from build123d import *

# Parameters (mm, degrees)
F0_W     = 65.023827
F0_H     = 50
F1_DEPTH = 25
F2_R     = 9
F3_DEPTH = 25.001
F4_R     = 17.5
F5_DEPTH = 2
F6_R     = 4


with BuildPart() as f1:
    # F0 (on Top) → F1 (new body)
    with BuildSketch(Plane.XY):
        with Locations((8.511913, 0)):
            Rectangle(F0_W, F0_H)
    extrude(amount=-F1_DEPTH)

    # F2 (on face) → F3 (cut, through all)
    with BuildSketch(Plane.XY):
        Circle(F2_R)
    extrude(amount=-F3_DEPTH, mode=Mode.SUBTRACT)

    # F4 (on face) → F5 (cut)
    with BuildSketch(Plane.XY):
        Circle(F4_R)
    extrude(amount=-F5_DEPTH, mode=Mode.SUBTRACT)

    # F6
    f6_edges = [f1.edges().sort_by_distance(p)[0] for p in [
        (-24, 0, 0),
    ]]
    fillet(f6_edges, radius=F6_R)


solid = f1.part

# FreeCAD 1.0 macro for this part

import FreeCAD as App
import Part
import Sketcher
Q = App.Units.Quantity


def edges_at(feature, points):
    """Names of the edges that pass closest to the given points."""
    edges = feature.Shape.Edges
    near = lambda p: min(range(len(edges)), key=lambda i: edges[i].distToShape(Part.Vertex(*p))[0])
    return sorted({f"Edge{near(p) + 1}" for p in points})

doc = App.newDocument("Part")
body = doc.addObject("PartDesign::Body", "Body")

# Sketch on XY plane
sketch1 = body.newObject("Sketcher::SketchObject", "Sketch")
sketch1.AttachmentSupport = (doc.getObject("XY_Plane"), [""])
sketch1.MapMode = "FlatFace"
sketch1.addGeometry(Part.LineSegment(App.Vector(-24, 25, 0), App.Vector(-24, -25, 0)), False)
sketch1.addGeometry(Part.LineSegment(App.Vector(-24, -25, 0), App.Vector(41, -25, 0)), False)
sketch1.addGeometry(Part.LineSegment(App.Vector(41, -25, 0), App.Vector(41, 25, 0)), False)
sketch1.addGeometry(Part.LineSegment(App.Vector(41, 25, 0), App.Vector(-24, 25, 0)), False)
sketch1.addConstraint(Sketcher.Constraint("Coincident", 0, 2, 1, 1))
sketch1.addConstraint(Sketcher.Constraint("Coincident", 1, 2, 2, 1))
sketch1.addConstraint(Sketcher.Constraint("Coincident", 2, 2, 3, 1))
sketch1.addConstraint(Sketcher.Constraint("Coincident", 3, 2, 0, 1))
sketch1.addConstraint(Sketcher.Constraint("Vertical", 0))
sketch1.addConstraint(Sketcher.Constraint("Horizontal", 1))
sketch1.addConstraint(Sketcher.Constraint("Vertical", 2))
sketch1.addConstraint(Sketcher.Constraint("Horizontal", 3))
sketch1.addConstraint(Sketcher.Constraint("DistanceY", 0, 2, 0, 1, Q("50 mm")))
sketch1.addConstraint(Sketcher.Constraint("DistanceX", 0, 2, -1, 1, Q("24 mm")))
sketch1.addConstraint(Sketcher.Constraint("DistanceY", 0, 2, -1, 1, Q("25 mm")))
sketch1.addConstraint(Sketcher.Constraint("DistanceX", 1, 1, 1, 2, Q("65.023827 mm")))
pad1 = body.newObject("PartDesign::Pad", "Pad")
pad1.Profile = sketch1
pad1.Length = 25
pad1.Reversed = True

# Sketch on XY plane
sketch2 = body.newObject("Sketcher::SketchObject", "Sketch001")
sketch2.AttachmentSupport = (doc.getObject("XY_Plane"), [""])
sketch2.MapMode = "FlatFace"
sketch2.addGeometry(Part.Circle(App.Vector(0, 0, 0), App.Vector(0, 0, 1), 9), False)
sketch2.addConstraint(Sketcher.Constraint("Coincident", 0, 3, -1, 1))
sketch2.addConstraint(Sketcher.Constraint("Diameter", 0, Q("18 mm")))
pocket1 = body.newObject("PartDesign::Pocket", "Pocket")
pocket1.Profile = sketch2
pocket1.Type = "ThroughAll"

# Sketch on XY plane
sketch3 = body.newObject("Sketcher::SketchObject", "Sketch002")
sketch3.AttachmentSupport = (doc.getObject("XY_Plane"), [""])
sketch3.MapMode = "FlatFace"
sketch3.addGeometry(Part.Circle(App.Vector(0, 0, 0), App.Vector(0, 0, 1), 18), False)
sketch3.addConstraint(Sketcher.Constraint("Coincident", 0, 3, -1, 1))
sketch3.addConstraint(Sketcher.Constraint("Diameter", 0, Q("35 mm")))
pocket2 = body.newObject("PartDesign::Pocket", "Pocket001")
pocket2.Profile = sketch3
pocket2.Length = 2
doc.recompute()

fillet = body.newObject("PartDesign::Fillet", "Fillet")
fillet.Base = (pocket2, edges_at(pocket2, [(-24, 0, 0)]))
fillet.Radius = 4

doc.recompute()
